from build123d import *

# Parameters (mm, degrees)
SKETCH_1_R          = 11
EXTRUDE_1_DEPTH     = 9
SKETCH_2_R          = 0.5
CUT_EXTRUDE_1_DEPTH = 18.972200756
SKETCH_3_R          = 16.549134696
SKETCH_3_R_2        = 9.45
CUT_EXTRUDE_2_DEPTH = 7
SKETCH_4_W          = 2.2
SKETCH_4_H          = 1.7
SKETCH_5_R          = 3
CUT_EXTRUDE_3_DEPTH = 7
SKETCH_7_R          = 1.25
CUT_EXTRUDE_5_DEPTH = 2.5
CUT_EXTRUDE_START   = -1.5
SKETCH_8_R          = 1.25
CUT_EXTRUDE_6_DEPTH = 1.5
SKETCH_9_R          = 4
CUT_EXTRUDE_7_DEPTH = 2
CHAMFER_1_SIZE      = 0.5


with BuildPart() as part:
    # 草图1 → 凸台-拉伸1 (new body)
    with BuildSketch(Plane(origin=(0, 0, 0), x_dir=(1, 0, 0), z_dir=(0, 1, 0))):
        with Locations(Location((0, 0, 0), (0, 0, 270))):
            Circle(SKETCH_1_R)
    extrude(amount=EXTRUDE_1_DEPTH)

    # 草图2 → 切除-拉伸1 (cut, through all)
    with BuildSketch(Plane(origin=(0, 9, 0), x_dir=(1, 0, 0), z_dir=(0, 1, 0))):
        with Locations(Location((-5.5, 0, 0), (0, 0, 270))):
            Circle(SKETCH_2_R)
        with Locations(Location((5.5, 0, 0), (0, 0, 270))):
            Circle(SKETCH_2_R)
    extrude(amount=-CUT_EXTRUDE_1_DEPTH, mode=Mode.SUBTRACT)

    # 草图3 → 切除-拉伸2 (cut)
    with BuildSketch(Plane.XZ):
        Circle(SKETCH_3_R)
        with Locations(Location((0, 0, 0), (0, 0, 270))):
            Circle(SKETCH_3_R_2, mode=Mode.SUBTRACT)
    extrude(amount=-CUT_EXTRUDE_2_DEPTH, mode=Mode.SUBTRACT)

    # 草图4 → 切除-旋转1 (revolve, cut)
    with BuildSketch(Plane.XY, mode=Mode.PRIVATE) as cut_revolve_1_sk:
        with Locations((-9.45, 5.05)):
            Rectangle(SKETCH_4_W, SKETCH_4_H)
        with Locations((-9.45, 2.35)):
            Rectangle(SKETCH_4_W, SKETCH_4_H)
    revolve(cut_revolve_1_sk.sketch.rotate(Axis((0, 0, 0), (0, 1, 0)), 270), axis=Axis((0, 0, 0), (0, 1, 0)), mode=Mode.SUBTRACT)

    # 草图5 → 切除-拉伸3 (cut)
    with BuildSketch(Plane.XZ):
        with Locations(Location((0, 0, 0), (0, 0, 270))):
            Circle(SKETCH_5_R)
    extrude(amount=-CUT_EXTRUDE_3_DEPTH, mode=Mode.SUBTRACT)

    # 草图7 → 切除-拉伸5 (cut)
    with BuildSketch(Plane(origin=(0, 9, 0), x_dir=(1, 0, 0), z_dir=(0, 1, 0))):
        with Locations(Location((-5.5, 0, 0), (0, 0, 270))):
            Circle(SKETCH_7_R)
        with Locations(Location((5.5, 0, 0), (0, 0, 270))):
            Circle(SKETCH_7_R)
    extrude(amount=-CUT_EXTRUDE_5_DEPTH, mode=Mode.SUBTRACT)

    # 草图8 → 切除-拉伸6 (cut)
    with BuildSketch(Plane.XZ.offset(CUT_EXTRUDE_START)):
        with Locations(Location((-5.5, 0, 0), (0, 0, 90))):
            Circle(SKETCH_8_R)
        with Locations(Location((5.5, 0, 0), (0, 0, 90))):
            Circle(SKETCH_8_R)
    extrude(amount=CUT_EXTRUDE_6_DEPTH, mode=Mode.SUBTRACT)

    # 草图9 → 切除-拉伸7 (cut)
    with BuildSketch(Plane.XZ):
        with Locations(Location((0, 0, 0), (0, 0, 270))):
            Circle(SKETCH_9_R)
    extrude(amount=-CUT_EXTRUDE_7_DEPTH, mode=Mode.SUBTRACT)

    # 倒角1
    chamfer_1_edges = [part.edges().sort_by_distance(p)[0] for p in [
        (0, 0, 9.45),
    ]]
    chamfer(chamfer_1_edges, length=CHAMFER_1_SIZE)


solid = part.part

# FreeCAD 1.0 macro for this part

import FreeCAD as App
import Part
import Sketcher
from FreeCAD import Vector
Q = App.Units.Quantity


def edges_at(feature, points):
    """Names of the edges that pass closest to the given points."""
    edges = feature.Shape.Edges
    near = lambda p: min(range(len(edges)), key=lambda i: edges[i].distToShape(Part.Vertex(*p))[0])
    return sorted({f"Edge{near(p) + 1}" for p in points})


def add_polygon(sketch, points):
    """Adds a closed chain of lines whose ends are joined by coincident constraints."""
    first, n = sketch.GeometryCount, len(points)
    for a, b in zip(points, points[1:] + points[:1]):
        sketch.addGeometry(Part.LineSegment(App.Vector(*a, 0), App.Vector(*b, 0)), False)
    for i in range(n):
        sketch.addConstraint(Sketcher.Constraint("Coincident", first + i, 2, first + (i + 1) % n, 1))

doc = App.newDocument("Part")
params = doc.addObject("Spreadsheet::Sheet", "Params")
for row, (alias, value) in enumerate([
    ("sketch1_diameter", "22 mm"),
    ("pad1_length", "9 mm"),
    ("sketch2_diameter", "1 mm"),
    ("sketch3_diameter", "18.9 mm"),
    ("pocket2_length", "7 mm"),
    ("sketch4_width", "2.2 mm"),
    ("sketch4_height", "1.7 mm"),
    ("groove_angle", "360 deg"),
    ("sketch5_diameter", "6 mm"),
    ("pocket3_length", "7 mm"),
    ("sketch6_diameter", "2.5 mm"),
    ("pocket4_length", "2.5 mm"),
    ("sketch7_diameter", "2.5 mm"),
    ("pocket5_length", "1.5 mm"),
    ("sketch8_diameter", "8 mm"),
    ("pocket6_length", "2 mm"),
    ("chamfer_size", "0.5 mm"),
], start=1):
    params.set(f"A{row}", alias)
    params.set(f"B{row}", "=" + value)
    params.setAlias(f"B{row}", alias)

body = doc.addObject("PartDesign::Body", "Body")

# Sketch on XZ plane
sketch1 = body.newObject("Sketcher::SketchObject", "Sketch")
sketch1.AttachmentSupport = (doc.getObject("XZ_Plane"), [""])
sketch1.MapMode = "FlatFace"
sketch1.addGeometry(Part.Circle(Vector(0, 0, 0), Vector(0, 0, 1), 11), False)
sketch1.addConstraint([
    Sketcher.Constraint("Coincident", 0, 3, -1, 1),
    Sketcher.Constraint("Diameter", 0, Q("22 mm")),
])
sketch1.setExpression("Constraints[1]", "Params.sketch1_diameter")
pad1 = body.newObject("PartDesign::Pad", "Pad")
pad1.Profile = sketch1
pad1.setExpression("Length", "Params.pad1_length")
pad1.Reversed = True

# Sketch on XZ plane
sketch2 = body.newObject("Sketcher::SketchObject", "Sketch001")
sketch2.AttachmentSupport = (doc.getObject("XZ_Plane"), [""])
sketch2.MapMode = "FlatFace"
sketch2.AttachmentOffset = App.Placement(Vector(0, 0, -9), App.Rotation())
sketch2.addGeometry([
    Part.Circle(Vector(-5.5, 0, 0), Vector(0, 0, 1), 0.5),
    Part.Circle(Vector(5.5, 0, 0), Vector(0, 0, 1), 0.5),
], False)
sketch2.addConstraint([
    Sketcher.Constraint("Equal", 0, 1),
    Sketcher.Constraint("Symmetric", 0, 3, 1, 3, -1, 1),
    Sketcher.Constraint("PointOnObject", 0, 3, -1),
    Sketcher.Constraint("Diameter", 0, Q("1 mm")),
    Sketcher.Constraint("DistanceX", 0, 3, 1, 3, Q("11 mm")),
])
sketch2.setExpression("Constraints[3]", "Params.sketch2_diameter")
pocket1 = body.newObject("PartDesign::Pocket", "Pocket")
pocket1.Profile = sketch2
pocket1.Type = "ThroughAll"
pocket1.Reversed = True

# Sketch on XZ plane
sketch3 = body.newObject("Sketcher::SketchObject", "Sketch002")
sketch3.AttachmentSupport = (doc.getObject("XZ_Plane"), [""])
sketch3.MapMode = "FlatFace"
sketch3.addGeometry([
    Part.Circle(Vector(0, 0, 0), Vector(0, 0, 1), 17),
    Part.Circle(Vector(0, 0, 0), Vector(0, 0, 1), 9),
], False)
sketch3.addConstraint([
    Sketcher.Constraint("Coincident", 0, 3, -1, 1),
    Sketcher.Constraint("Coincident", 1, 3, -1, 1),
    Sketcher.Constraint("Diameter", 1, Q("18.9 mm")),
    Sketcher.Constraint("Diameter", 0, Q("33.098269 mm")),
])
sketch3.setExpression("Constraints[2]", "Params.sketch3_diameter")
pocket2 = body.newObject("PartDesign::Pocket", "Pocket001")
pocket2.Profile = sketch3
pocket2.setExpression("Length", "Params.pocket2_length")

# Sketch on XY plane
sketch4 = body.newObject("Sketcher::SketchObject", "Sketch003")
sketch4.AttachmentSupport = (doc.getObject("XY_Plane"), [""])
sketch4.MapMode = "FlatFace"
add_polygon(sketch4, [(-10.6, 5.9), (-10.6, 4.2), (-8.3, 4.2), (-8.3, 5.9)])  # lines 0-3
add_polygon(sketch4, [(-10.6, 3.2), (-10.6, 1.5), (-8.3, 1.5), (-8.3, 3.2)])  # lines 4-7
sketch4.addConstraint([
    Sketcher.Constraint("Vertical", 0),
    Sketcher.Constraint("Horizontal", 1),
    Sketcher.Constraint("Vertical", 2),
    Sketcher.Constraint("Horizontal", 3),
    Sketcher.Constraint("Vertical", 4),
    Sketcher.Constraint("Horizontal", 5),
    Sketcher.Constraint("Vertical", 6),
    Sketcher.Constraint("Horizontal", 7),
    Sketcher.Constraint("Vertical", 3, 2, 4, 2),
    Sketcher.Constraint("Vertical", 2, 2, 5, 2),
    Sketcher.Constraint("Equal", 2, 4),
    Sketcher.Constraint("DistanceX", 1, 1, 1, 2, Q("2.2 mm")),
    Sketcher.Constraint("DistanceY", 0, 2, 0, 1, Q("1.7 mm")),
    Sketcher.Constraint("DistanceY", 6, 2, 1, 2, Q("1 mm")),
    Sketcher.Constraint("DistanceY", -1, 1, 0, 2, Q("4.2 mm")),
    Sketcher.Constraint("DistanceX", 0, 2, -1, 1, Q("10.55 mm")),
])
sketch4.setExpression("Constraints[19]", "Params.sketch4_width")
sketch4.setExpression("Constraints[20]", "Params.sketch4_height")
groove = body.newObject("PartDesign::Groove", "Groove")
groove.Profile = sketch4
groove.ReferenceAxis = (sketch4, ["V_Axis"])
groove.setExpression("Angle", "Params.groove_angle")

# Sketch on XZ plane
sketch5 = body.newObject("Sketcher::SketchObject", "Sketch004")
sketch5.AttachmentSupport = (doc.getObject("XZ_Plane"), [""])
sketch5.MapMode = "FlatFace"
sketch5.addGeometry(Part.Circle(Vector(0, 0, 0), Vector(0, 0, 1), 3), False)
sketch5.addConstraint([
    Sketcher.Constraint("Coincident", 0, 3, -1, 1),
    Sketcher.Constraint("Diameter", 0, Q("6 mm")),
])
sketch5.setExpression("Constraints[1]", "Params.sketch5_diameter")
pocket3 = body.newObject("PartDesign::Pocket", "Pocket002")
pocket3.Profile = sketch5
pocket3.setExpression("Length", "Params.pocket3_length")

# Sketch on XZ plane
sketch6 = body.newObject("Sketcher::SketchObject", "Sketch005")
sketch6.AttachmentSupport = (doc.getObject("XZ_Plane"), [""])
sketch6.MapMode = "FlatFace"
sketch6.AttachmentOffset = App.Placement(Vector(0, 0, -9), App.Rotation())
sketch6.addGeometry([
    Part.Circle(Vector(-5.5, 0, 0), Vector(0, 0, 1), 1.2),
    Part.Circle(Vector(5.5, 0, 0), Vector(0, 0, 1), 1.2),
], False)
sketch6.addConstraint([
    Sketcher.Constraint("Equal", 0, 1),
    Sketcher.Constraint("Symmetric", 0, 3, 1, 3, -1, 1),
    Sketcher.Constraint("PointOnObject", 0, 3, -1),
    Sketcher.Constraint("Diameter", 0, Q("2.5 mm")),
    Sketcher.Constraint("DistanceX", 0, 3, 1, 3, Q("11 mm")),
])
sketch6.setExpression("Constraints[3]", "Params.sketch6_diameter")
pocket4 = body.newObject("PartDesign::Pocket", "Pocket003")
pocket4.Profile = sketch6
pocket4.setExpression("Length", "Params.pocket4_length")
pocket4.Reversed = True

# Sketch on XZ plane
sketch7 = body.newObject("Sketcher::SketchObject", "Sketch006")
sketch7.AttachmentSupport = (doc.getObject("XZ_Plane"), [""])
sketch7.MapMode = "FlatFace"
sketch7.AttachmentOffset = App.Placement(Vector(0, 0, -1.5), App.Rotation())
sketch7.addGeometry([
    Part.Circle(Vector(-5.5, 0, 0), Vector(0, 0, 1), 1.2),
    Part.Circle(Vector(5.5, 0, 0), Vector(0, 0, 1), 1.2),
], False)
sketch7.addConstraint([
    Sketcher.Constraint("Equal", 0, 1),
    Sketcher.Constraint("Symmetric", 0, 3, 1, 3, -1, 1),
    Sketcher.Constraint("PointOnObject", 0, 3, -1),
    Sketcher.Constraint("Diameter", 0, Q("2.5 mm")),
    Sketcher.Constraint("DistanceX", 0, 3, 1, 3, Q("11 mm")),
])
sketch7.setExpression("Constraints[3]", "Params.sketch7_diameter")
pocket5 = body.newObject("PartDesign::Pocket", "Pocket004")
pocket5.Profile = sketch7
pocket5.setExpression("Length", "Params.pocket5_length")
pocket5.Reversed = True

# Sketch on XZ plane
sketch8 = body.newObject("Sketcher::SketchObject", "Sketch007")
sketch8.AttachmentSupport = (doc.getObject("XZ_Plane"), [""])
sketch8.MapMode = "FlatFace"
sketch8.addGeometry(Part.Circle(Vector(0, 0, 0), Vector(0, 0, 1), 4), False)
sketch8.addConstraint([
    Sketcher.Constraint("Coincident", 0, 3, -1, 1),
    Sketcher.Constraint("Diameter", 0, Q("8 mm")),
])
sketch8.setExpression("Constraints[1]", "Params.sketch8_diameter")
pocket6 = body.newObject("PartDesign::Pocket", "Pocket005")
pocket6.Profile = sketch8
pocket6.setExpression("Length", "Params.pocket6_length")
doc.recompute()

chamfer = body.newObject("PartDesign::Chamfer", "Chamfer")
chamfer.Base = (pocket6, edges_at(pocket6, [(0, 0, 9.45)]))
chamfer.setExpression("Size", "Params.chamfer_size")

doc.recompute()
